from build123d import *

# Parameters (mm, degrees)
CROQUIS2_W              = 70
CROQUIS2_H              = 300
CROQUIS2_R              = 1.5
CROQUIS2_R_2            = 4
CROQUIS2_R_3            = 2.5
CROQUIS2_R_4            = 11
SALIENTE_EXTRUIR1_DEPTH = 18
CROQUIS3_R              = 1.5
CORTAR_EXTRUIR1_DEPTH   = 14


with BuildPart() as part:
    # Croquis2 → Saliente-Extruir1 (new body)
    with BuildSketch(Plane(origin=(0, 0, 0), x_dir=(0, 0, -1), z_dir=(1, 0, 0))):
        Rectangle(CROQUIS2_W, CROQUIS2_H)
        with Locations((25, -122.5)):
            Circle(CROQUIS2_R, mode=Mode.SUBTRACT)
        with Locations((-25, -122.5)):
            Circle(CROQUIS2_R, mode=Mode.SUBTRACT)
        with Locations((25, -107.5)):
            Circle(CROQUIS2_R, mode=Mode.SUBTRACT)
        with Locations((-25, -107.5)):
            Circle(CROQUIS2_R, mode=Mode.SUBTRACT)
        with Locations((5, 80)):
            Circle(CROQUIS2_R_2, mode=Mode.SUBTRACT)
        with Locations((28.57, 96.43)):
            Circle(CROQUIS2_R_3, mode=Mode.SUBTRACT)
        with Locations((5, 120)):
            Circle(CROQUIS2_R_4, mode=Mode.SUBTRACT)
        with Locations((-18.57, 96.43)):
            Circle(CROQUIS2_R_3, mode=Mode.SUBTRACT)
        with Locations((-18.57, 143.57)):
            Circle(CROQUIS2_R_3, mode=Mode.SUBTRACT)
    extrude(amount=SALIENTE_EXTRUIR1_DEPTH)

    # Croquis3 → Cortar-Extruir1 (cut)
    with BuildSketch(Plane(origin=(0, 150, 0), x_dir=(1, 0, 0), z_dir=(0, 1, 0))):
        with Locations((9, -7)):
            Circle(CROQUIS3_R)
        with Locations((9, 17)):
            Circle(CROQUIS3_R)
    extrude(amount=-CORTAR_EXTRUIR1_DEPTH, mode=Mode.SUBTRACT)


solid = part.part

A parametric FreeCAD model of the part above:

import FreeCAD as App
import Part
import Sketcher
from FreeCAD import Vector

doc = App.newDocument("Part")
body = doc.addObject("PartDesign::Body", "Body")

# Sketch on YZ plane
sketch1 = body.newObject("Sketcher::SketchObject", "Sketch")
sketch1.AttachmentSupport = (doc.getObject("YZ_Plane"), [""])
sketch1.MapMode = "FlatFace"
sketch1.addGeometry([
    Part.LineSegment(Vector(150, 35, 0), Vector(-150, 35, 0)),  # 0
    Part.LineSegment(Vector(-150, 35, 0), Vector(-150, -35, 0)),  # 1
    Part.LineSegment(Vector(-150, -35, 0), Vector(150, -35, 0)),  # 2
    Part.LineSegment(Vector(150, -35, 0), Vector(150, 35, 0)),  # 3
    Part.Circle(Vector(-122.5, 25, 0), Vector(0, 0, 1), 1.5),  # 4
    Part.Circle(Vector(-107.5, 25, 0), Vector(0, 0, 1), 1.5),  # 5
    Part.Circle(Vector(-122.5, -25, 0), Vector(0, 0, 1), 1.5),  # 6
    Part.Circle(Vector(-107.5, -25, 0), Vector(0, 0, 1), 1.5),  # 7
    Part.Circle(Vector(96.4, 18.6, 0), Vector(0, 0, 1), 2.5),  # 8
    Part.Circle(Vector(143.6, 18.6, 0), Vector(0, 0, 1), 2.5),  # 9
    Part.Circle(Vector(80, -5, 0), Vector(0, 0, 1), 4),  # 10
    Part.Circle(Vector(120, -5, 0), Vector(0, 0, 1), 11),  # 11
    Part.Circle(Vector(96.4, -28.6, 0), Vector(0, 0, 1), 2.5),  # 12
], False)
sketch1.addConstraint([
    Sketcher.Constraint("Coincident", 0, 2, 1, 1),
    Sketcher.Constraint("Coincident", 1, 2, 2, 1),
    Sketcher.Constraint("Coincident", 2, 2, 3, 1),
    Sketcher.Constraint("Coincident", 3, 2, 0, 1),
    Sketcher.Constraint("Horizontal", 0),
    Sketcher.Constraint("Vertical", 1),
    Sketcher.Constraint("Horizontal", 2),
    Sketcher.Constraint("Vertical", 3),
    Sketcher.Constraint("Equal", 4, 5),
    Sketcher.Constraint("Equal", 5, 6),
    Sketcher.Constraint("Equal", 6, 7),
    Sketcher.Constraint("Equal", 8, 9),
    Sketcher.Constraint("Equal", 9, 12),
    Sketcher.Constraint("Symmetric", 0, 2, 2, 2, -1, 1),
    Sketcher.Constraint("Symmetric", 4, 3, 6, 3, -1),
    Sketcher.Constraint("Symmetric", 5, 3, 7, 3, -1),
    Sketcher.Constraint("Horizontal", 4, 3, 5, 3),
    Sketcher.Constraint("Horizontal", 8, 3, 9, 3),
    Sketcher.Constraint("Horizontal", 10, 3, 11, 3),
    Sketcher.Constraint("Vertical", 8, 3, 12, 3),
    Sketcher.Constraint("Diameter", 4, 3.0),
    Sketcher.Constraint("Diameter", 8, 5.0),
    Sketcher.Constraint("Diameter", 10, 8.0),
    Sketcher.Constraint("Diameter", 11, 22.0),
    Sketcher.Constraint("DistanceX", 0, 2, 0, 1, 300.0),
    Sketcher.Constraint("DistanceY", 1, 2, 1, 1, 70.0),
    Sketcher.Constraint("DistanceY", -1, 1, 4, 3, 25.0),
    Sketcher.Constraint("DistanceX", -1, 1, 10, 3, 80.0),
    Sketcher.Constraint("DistanceY", 10, 3, -1, 1, 5.0),
    Sketcher.Constraint("DistanceX", -1, 1, 11, 3, 120.0),
    Sketcher.Constraint("DistanceX", 4, 3, 5, 3, 15.0),
    Sketcher.Constraint("DistanceX", 4, 3, -1, 1, 122.5),
    Sketcher.Constraint("DistanceX", -1, 1, 8, 3, 96.43),
    Sketcher.Constraint("DistanceY", -1, 1, 8, 3, 18.57),
    Sketcher.Constraint("DistanceX", -1, 1, 9, 3, 143.57),
    Sketcher.Constraint("DistanceY", 12, 3, -1, 1, 28.57),
])
pad1 = body.newObject("PartDesign::Pad", "Pad")
pad1.Profile = sketch1
pad1.Length = 18

# Sketch on XZ plane
sketch2 = body.newObject("Sketcher::SketchObject", "Sketch001")
sketch2.AttachmentSupport = (doc.getObject("XZ_Plane"), [""])
sketch2.MapMode = "FlatFace"
sketch2.AttachmentOffset = App.Placement(Vector(0, 0, -150), App.Rotation())
sketch2.addGeometry([
    Part.Circle(Vector(9, 7, 0), Vector(0, 0, 1), 1.5),
    Part.Circle(Vector(9, -17, 0), Vector(0, 0, 1), 1.5),
], False)
sketch2.addConstraint([
    Sketcher.Constraint("Equal", 0, 1),
    Sketcher.Constraint("Vertical", 0, 3, 1, 3),
    Sketcher.Constraint("Diameter", 0, 3.0),
    Sketcher.Constraint("DistanceX", -1, 1, 0, 3, 9.0),
    Sketcher.Constraint("DistanceY", -1, 1, 0, 3, 7.0),
    Sketcher.Constraint("DistanceY", 1, 3, -1, 1, 17.0),
])
pocket1 = body.newObject("PartDesign::Pocket", "Pocket")
pocket1.Profile = sketch2
pocket1.Length = 14
pocket1.Reversed = True

doc.recompute()
